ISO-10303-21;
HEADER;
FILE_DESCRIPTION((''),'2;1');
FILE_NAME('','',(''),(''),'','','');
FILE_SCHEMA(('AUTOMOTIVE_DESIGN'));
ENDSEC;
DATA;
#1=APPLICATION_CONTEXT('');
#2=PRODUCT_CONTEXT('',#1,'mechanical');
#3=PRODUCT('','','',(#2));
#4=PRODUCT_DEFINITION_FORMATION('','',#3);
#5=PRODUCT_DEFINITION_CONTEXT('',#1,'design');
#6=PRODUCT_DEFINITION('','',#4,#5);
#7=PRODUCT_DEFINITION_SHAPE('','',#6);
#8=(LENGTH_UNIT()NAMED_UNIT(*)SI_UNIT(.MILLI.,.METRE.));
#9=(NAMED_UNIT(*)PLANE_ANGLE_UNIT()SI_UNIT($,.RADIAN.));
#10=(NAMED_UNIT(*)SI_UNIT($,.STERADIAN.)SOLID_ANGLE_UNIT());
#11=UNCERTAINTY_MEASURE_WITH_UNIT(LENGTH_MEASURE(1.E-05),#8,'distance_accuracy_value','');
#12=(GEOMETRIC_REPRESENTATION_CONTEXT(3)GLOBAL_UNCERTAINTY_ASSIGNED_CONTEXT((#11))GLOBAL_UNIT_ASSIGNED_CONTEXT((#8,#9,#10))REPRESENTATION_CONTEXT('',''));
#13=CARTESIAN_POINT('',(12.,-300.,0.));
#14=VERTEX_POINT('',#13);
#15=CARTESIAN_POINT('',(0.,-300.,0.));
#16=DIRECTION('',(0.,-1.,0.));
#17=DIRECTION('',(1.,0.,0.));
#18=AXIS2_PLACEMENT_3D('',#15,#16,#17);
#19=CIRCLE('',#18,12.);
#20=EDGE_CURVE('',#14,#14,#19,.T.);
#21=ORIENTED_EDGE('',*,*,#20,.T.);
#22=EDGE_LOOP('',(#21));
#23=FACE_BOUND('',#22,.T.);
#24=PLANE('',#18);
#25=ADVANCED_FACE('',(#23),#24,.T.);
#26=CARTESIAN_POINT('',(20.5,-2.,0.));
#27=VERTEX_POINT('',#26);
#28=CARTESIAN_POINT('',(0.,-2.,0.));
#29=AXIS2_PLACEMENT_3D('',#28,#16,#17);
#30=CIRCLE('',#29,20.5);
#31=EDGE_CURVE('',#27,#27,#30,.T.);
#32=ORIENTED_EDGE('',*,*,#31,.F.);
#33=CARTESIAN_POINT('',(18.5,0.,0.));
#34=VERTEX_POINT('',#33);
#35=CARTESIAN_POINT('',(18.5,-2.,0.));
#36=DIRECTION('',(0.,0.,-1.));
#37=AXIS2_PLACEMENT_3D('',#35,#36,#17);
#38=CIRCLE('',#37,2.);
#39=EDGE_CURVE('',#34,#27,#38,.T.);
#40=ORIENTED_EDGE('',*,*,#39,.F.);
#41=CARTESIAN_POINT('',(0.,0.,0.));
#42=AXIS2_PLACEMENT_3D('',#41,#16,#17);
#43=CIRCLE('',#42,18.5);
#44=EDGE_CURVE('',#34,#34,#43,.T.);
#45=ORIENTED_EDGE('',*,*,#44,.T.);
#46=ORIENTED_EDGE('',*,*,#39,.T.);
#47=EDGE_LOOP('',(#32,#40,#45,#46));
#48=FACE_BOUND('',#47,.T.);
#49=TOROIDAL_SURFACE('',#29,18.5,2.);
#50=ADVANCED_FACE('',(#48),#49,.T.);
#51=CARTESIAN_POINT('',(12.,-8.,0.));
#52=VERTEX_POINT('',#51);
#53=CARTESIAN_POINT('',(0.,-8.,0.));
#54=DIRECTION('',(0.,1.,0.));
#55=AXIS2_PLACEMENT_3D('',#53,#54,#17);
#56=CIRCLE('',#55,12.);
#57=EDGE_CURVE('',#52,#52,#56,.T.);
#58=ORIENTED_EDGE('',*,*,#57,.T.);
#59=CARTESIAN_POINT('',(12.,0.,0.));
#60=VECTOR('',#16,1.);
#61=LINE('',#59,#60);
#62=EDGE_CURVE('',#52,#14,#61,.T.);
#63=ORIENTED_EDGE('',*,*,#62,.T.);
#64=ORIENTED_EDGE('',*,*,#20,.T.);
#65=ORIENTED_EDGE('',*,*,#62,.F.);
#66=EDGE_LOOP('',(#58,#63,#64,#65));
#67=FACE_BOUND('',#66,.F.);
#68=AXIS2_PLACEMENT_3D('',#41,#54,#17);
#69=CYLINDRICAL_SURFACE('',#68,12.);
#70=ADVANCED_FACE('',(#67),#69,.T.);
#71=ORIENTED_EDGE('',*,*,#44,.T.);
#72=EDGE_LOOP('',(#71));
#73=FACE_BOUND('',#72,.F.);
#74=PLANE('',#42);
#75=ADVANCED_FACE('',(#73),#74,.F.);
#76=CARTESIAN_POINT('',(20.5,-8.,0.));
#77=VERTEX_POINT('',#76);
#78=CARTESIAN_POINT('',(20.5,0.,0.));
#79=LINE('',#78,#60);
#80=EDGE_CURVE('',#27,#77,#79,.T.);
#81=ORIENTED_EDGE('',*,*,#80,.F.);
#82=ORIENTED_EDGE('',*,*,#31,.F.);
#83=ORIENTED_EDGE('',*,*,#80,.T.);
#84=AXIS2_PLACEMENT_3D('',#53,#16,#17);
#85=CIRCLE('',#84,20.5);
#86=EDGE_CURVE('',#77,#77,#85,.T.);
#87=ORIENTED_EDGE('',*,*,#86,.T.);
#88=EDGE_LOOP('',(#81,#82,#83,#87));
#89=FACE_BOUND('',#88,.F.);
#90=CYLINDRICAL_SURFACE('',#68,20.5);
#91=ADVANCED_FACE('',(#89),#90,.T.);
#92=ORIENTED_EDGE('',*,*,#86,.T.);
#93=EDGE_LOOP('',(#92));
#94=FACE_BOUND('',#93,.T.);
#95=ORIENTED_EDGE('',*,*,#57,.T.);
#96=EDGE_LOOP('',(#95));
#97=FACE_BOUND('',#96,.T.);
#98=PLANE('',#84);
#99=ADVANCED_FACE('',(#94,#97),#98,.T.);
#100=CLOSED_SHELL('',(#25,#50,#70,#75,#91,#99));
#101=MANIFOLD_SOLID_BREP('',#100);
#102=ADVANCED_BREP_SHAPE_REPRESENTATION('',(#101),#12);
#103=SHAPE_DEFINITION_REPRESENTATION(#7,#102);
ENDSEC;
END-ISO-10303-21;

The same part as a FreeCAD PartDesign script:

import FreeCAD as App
import Part
import Sketcher

V = App.Vector


def edges_at(feature, points):
    """Names of the edges that pass closest to the given points."""
    edges = feature.Shape.Edges
    near = lambda p: min(range(len(edges)), key=lambda i: edges[i].distToShape(Part.Vertex(*p))[0])
    return sorted({f"Edge{near(p) + 1}" for p in points})

doc = App.newDocument("Part")
params = doc.addObject("Spreadsheet::Sheet", "Params")
for row, (alias, value) in enumerate([
    ("sketch1_diameter", "41 mm"),
    ("pad1_length", "8 mm"),
    ("sketch2_diameter", "24 mm"),
    ("pad2_length", "300 mm"),
    ("fillet_radius", "2 mm"),
], start=1):
    params.set(f"A{row}", alias)
    params.set(f"B{row}", "=" + value)
    params.setAlias(f"B{row}", alias)

body = doc.addObject("PartDesign::Body", "Body")

# Sketch on XZ plane
sketch1 = doc.addObject("Sketcher::SketchObject", "Sketch")
body.addObject(sketch1)
sketch1.AttachmentSupport = (doc.XZ_Plane, [""])
sketch1.MapMode = "FlatFace"
sketch1.addGeometry(Part.Circle(V(0, 0, 0), V(0, 0, 1), 20.5), False)
sketch1.addConstraint([
    Sketcher.Constraint("Coincident", 0, 3, -1, 1),
    Sketcher.Constraint("Diameter", 0, 41.0),
])
sketch1.setExpression("Constraints[1]", "Params.sketch1_diameter")
pad1 = doc.addObject("PartDesign::Pad", "Pad")
body.addObject(pad1)
pad1.Profile = sketch1
pad1.setExpression("Length", "Params.pad1_length")

# Sketch on XZ plane
sketch2 = doc.addObject("Sketcher::SketchObject", "Sketch001")
body.addObject(sketch2)
sketch2.AttachmentSupport = (doc.XZ_Plane, [""])
sketch2.MapMode = "FlatFace"
sketch2.addGeometry(Part.Circle(V(0, 0, 0), V(0, 0, 1), 12), False)
sketch2.addConstraint([
    Sketcher.Constraint("Coincident", 0, 3, -1, 1),
    Sketcher.Constraint("Diameter", 0, 24.0),
])
sketch2.setExpression("Constraints[1]", "Params.sketch2_diameter")
pad2 = doc.addObject("PartDesign::Pad", "Pad001")
body.addObject(pad2)
pad2.Profile = sketch2
pad2.setExpression("Length", "Params.pad2_length")
doc.recompute()

fillet = doc.addObject("PartDesign::Fillet", "Fillet")
body.addObject(fillet)
fillet.Base = (pad2, edges_at(pad2, [(-20.5, 0, 0)]))
fillet.setExpression("Radius", "Params.fillet_radius")

doc.recompute()
